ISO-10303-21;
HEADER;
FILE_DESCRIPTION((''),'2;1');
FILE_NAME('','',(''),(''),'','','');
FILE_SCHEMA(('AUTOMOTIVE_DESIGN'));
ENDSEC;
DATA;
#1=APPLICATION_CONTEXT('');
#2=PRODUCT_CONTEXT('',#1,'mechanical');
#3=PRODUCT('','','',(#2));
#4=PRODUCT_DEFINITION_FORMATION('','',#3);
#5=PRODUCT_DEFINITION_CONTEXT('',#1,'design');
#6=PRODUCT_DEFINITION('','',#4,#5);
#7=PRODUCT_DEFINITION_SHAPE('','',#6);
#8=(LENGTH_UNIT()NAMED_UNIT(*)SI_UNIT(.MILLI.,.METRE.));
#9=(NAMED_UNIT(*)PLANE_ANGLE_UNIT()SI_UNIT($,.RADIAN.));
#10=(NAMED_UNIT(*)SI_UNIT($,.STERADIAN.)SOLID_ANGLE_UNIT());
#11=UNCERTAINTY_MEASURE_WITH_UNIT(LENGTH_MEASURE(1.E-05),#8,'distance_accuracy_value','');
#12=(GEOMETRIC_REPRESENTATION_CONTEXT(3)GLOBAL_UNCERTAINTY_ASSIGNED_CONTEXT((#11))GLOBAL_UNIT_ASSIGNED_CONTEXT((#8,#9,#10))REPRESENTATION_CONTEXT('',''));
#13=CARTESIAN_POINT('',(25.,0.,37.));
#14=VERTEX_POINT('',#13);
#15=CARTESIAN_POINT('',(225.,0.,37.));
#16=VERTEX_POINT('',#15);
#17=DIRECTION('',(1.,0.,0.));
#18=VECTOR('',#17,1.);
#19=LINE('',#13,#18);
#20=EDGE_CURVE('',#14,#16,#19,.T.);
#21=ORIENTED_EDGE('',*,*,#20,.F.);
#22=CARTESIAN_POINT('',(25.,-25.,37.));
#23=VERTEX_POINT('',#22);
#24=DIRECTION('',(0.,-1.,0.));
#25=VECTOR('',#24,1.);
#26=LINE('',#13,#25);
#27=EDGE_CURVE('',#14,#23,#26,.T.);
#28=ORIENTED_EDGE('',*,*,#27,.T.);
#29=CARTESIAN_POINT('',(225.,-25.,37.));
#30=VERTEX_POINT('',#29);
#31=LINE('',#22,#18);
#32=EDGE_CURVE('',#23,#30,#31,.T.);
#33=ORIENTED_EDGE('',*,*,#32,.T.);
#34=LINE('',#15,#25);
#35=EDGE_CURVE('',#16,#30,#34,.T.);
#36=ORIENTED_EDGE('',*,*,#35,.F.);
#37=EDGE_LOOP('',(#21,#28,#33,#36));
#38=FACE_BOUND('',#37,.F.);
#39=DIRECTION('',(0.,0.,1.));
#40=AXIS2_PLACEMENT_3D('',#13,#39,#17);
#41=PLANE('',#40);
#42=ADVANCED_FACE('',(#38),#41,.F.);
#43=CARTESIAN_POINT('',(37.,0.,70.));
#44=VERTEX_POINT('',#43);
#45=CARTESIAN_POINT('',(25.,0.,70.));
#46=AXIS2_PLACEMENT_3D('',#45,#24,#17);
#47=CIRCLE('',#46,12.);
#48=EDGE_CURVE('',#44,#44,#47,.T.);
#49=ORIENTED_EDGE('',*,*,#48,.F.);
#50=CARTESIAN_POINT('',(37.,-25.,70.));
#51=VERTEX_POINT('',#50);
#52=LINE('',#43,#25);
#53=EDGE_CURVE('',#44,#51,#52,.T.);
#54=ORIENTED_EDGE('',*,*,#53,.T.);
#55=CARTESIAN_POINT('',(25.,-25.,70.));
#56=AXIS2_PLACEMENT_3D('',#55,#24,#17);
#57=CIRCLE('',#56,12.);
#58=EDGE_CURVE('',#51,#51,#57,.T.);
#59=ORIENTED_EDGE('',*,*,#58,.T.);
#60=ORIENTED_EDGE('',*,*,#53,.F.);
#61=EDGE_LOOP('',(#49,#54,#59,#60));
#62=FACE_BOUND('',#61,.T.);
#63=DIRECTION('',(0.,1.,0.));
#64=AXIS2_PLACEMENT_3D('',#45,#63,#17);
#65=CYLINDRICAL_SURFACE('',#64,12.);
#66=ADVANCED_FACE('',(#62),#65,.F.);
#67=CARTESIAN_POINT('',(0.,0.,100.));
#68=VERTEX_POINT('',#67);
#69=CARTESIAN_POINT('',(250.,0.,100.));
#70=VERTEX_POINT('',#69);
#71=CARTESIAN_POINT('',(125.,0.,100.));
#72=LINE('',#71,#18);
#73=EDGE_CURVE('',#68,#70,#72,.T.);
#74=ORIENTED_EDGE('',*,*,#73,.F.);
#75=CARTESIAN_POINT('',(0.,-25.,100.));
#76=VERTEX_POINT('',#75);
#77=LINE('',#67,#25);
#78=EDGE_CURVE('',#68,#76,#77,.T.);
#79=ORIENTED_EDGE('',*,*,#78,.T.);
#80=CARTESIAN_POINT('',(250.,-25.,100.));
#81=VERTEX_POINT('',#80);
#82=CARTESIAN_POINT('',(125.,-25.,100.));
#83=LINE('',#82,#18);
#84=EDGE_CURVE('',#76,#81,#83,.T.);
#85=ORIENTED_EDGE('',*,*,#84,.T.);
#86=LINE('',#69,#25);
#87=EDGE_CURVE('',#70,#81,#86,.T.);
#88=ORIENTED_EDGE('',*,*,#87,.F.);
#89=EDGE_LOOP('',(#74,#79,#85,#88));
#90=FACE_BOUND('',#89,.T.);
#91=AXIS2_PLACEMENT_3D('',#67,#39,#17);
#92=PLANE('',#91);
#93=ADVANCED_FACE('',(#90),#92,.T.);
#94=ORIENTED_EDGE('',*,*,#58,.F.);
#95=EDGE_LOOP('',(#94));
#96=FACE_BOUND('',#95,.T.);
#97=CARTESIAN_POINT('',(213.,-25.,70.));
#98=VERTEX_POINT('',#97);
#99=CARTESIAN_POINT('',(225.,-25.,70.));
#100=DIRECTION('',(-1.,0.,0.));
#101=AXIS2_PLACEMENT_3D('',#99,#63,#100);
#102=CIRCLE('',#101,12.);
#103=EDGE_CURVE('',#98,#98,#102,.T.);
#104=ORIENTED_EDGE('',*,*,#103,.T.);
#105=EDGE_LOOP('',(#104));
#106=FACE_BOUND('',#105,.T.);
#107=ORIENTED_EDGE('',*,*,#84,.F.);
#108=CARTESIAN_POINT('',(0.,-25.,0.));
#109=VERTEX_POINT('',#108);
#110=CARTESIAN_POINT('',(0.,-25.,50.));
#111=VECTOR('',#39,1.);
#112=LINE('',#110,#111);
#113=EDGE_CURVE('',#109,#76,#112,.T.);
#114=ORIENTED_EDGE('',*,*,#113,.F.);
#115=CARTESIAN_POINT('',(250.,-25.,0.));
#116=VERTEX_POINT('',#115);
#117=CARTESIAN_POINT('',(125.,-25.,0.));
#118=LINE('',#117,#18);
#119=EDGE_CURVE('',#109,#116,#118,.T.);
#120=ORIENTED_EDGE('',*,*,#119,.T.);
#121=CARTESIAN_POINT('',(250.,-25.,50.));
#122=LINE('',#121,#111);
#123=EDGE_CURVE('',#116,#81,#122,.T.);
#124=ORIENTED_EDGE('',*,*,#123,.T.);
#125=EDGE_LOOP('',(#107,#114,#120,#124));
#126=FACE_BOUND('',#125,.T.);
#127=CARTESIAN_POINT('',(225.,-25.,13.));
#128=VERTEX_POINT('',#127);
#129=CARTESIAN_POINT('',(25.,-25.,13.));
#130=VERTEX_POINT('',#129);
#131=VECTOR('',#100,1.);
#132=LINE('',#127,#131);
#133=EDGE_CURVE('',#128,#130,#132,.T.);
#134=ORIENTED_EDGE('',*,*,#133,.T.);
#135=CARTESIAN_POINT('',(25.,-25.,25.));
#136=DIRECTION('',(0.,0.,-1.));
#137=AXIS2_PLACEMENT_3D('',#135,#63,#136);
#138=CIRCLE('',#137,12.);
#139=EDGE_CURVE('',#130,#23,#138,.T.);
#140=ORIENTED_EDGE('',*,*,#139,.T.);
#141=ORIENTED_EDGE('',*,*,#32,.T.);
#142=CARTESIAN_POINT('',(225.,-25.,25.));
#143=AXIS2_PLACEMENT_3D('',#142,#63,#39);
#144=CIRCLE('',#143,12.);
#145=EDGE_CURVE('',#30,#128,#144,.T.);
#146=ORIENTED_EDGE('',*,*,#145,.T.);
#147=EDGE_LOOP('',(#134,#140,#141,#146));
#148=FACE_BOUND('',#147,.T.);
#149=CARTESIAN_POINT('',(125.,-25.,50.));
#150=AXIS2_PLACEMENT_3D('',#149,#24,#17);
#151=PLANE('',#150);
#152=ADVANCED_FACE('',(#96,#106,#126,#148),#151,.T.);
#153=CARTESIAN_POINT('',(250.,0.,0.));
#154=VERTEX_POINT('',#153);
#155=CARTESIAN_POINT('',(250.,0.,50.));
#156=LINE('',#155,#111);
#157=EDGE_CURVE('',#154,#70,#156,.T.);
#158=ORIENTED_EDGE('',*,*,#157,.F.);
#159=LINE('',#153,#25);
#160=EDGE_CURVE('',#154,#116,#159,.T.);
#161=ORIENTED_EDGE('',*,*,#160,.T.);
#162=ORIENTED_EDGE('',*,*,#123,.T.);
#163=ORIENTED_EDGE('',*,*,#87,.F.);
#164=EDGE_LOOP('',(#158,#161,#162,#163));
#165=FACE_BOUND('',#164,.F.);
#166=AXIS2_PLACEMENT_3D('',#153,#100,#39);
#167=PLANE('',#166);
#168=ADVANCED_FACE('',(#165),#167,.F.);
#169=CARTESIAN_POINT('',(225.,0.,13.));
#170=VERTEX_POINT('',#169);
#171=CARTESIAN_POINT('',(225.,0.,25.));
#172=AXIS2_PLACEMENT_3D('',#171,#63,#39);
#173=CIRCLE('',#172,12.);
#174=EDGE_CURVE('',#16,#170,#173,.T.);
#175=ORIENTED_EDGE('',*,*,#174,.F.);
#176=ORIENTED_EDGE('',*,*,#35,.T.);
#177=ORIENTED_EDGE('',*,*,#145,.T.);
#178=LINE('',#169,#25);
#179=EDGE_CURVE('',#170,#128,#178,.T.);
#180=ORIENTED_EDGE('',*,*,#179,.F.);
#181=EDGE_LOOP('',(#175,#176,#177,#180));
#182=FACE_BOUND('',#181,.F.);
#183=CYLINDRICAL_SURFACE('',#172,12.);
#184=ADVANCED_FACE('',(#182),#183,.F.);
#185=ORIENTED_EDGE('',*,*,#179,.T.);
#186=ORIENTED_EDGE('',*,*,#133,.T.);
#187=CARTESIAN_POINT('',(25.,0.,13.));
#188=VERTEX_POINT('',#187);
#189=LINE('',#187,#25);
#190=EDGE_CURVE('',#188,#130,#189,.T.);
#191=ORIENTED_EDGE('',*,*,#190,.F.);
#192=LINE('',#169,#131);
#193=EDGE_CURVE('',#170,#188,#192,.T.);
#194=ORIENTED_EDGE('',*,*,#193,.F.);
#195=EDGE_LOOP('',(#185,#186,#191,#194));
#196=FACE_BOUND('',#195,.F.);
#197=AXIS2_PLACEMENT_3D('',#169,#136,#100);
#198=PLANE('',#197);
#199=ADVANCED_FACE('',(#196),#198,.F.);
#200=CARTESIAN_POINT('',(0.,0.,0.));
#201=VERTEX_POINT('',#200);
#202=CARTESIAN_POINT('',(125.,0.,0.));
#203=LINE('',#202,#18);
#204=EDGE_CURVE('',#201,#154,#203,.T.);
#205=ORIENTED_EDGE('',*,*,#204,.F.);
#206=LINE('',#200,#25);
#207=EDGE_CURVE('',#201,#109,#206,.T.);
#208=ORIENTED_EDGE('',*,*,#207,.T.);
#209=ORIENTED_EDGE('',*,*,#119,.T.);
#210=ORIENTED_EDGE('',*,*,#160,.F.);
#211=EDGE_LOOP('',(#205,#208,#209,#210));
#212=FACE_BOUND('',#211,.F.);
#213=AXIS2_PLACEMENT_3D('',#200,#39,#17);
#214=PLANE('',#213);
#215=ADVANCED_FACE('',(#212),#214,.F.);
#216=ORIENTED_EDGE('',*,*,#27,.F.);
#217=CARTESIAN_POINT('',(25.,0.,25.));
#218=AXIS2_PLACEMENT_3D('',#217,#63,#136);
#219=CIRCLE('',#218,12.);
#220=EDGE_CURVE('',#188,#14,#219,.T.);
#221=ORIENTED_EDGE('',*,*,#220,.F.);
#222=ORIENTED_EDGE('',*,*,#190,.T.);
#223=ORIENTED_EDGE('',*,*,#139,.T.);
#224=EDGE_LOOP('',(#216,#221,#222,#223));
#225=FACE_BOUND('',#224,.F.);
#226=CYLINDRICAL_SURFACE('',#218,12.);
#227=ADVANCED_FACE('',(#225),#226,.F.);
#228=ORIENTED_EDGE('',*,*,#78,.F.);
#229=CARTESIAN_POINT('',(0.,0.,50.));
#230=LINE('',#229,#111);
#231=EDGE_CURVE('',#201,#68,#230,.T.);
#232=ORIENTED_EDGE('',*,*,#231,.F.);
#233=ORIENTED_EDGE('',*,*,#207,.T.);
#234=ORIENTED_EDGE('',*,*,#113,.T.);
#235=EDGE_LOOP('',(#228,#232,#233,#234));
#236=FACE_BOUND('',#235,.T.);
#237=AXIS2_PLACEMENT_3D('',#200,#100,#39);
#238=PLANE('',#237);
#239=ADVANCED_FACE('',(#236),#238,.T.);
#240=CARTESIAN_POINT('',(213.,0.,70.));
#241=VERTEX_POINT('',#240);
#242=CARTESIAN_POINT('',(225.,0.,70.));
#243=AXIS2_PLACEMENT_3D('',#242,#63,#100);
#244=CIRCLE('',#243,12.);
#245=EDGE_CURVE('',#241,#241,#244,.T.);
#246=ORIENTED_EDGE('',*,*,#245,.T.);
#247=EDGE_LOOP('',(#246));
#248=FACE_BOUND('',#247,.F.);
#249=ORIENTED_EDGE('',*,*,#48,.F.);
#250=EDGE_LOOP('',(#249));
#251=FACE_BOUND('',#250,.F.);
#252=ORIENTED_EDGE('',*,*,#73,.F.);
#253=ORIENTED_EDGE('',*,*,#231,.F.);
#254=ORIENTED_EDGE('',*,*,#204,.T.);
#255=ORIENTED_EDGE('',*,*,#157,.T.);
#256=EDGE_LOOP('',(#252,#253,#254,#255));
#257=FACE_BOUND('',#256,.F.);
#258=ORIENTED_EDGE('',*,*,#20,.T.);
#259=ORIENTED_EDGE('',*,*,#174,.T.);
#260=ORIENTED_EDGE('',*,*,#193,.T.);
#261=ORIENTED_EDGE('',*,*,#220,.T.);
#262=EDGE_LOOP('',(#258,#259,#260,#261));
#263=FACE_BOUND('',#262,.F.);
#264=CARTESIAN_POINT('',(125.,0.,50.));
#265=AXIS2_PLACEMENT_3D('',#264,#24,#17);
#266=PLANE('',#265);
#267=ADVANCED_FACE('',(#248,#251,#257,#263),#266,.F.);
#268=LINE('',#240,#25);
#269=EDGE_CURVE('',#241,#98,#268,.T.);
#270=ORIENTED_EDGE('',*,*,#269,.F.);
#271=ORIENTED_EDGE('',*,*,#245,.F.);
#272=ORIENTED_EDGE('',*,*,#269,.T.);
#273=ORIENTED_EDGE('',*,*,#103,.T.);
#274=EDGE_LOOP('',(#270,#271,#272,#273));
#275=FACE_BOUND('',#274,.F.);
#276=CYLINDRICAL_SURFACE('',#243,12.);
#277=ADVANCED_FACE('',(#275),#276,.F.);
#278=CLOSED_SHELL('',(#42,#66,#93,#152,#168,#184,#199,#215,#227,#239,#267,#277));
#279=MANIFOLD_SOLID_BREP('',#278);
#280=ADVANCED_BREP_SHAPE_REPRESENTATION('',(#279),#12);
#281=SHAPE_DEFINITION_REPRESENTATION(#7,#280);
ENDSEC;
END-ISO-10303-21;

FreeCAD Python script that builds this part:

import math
import FreeCAD as App
import Part
import Sketcher

doc = App.newDocument("Part")
body = doc.addObject("PartDesign::Body", "Body")

sketch1 = body.newObject("Sketcher::SketchObject", "Sketch")
sketch1.AttachmentSupport = (doc.getObject("XZ_Plane"), [""])
sketch1.MapMode = "FlatFace"
sketch1.addGeometry(Part.LineSegment(App.Vector(0, 100, 0), App.Vector(0, 0, 0)), False)
sketch1.addGeometry(Part.LineSegment(App.Vector(0, 0, 0), App.Vector(250, 0, 0)), False)
sketch1.addGeometry(Part.LineSegment(App.Vector(250, 0, 0), App.Vector(250, 100, 0)), False)
sketch1.addGeometry(Part.LineSegment(App.Vector(250, 100, 0), App.Vector(0, 100, 0)), False)
sketch1.addGeometry(Part.LineSegment(App.Vector(25, 37, 0), App.Vector(225, 37, 0)), False)
sketch1.addGeometry(Part.ArcOfCircle(Part.Circle(App.Vector(225, 25, 0), App.Vector(0, 0, 1), 12), math.radians(-90), math.radians(90)), False)
sketch1.addGeometry(Part.LineSegment(App.Vector(225, 13, 0), App.Vector(25, 13, 0)), False)
sketch1.addGeometry(Part.ArcOfCircle(Part.Circle(App.Vector(25, 25, 0), App.Vector(0, 0, 1), 12), math.radians(90), math.radians(270)), False)
sketch1.addGeometry(Part.Circle(App.Vector(25, 70, 0), App.Vector(0, 0, 1), 12), False)
sketch1.addGeometry(Part.Circle(App.Vector(225, 70, 0), App.Vector(0, 0, 1), 12), False)
sketch1.addConstraint(Sketcher.Constraint("Coincident", 0, 2, 1, 1))
sketch1.addConstraint(Sketcher.Constraint("Coincident", 1, 2, 2, 1))
sketch1.addConstraint(Sketcher.Constraint("Coincident", 2, 2, 3, 1))
sketch1.addConstraint(Sketcher.Constraint("Coincident", 3, 2, 0, 1))
sketch1.addConstraint(Sketcher.Constraint("Tangent", 4, 2, 5, 2))
sketch1.addConstraint(Sketcher.Constraint("Tangent", 5, 1, 6, 1))
sketch1.addConstraint(Sketcher.Constraint("Tangent", 6, 2, 7, 2))
sketch1.addConstraint(Sketcher.Constraint("Tangent", 7, 1, 4, 1))
sketch1.addConstraint(Sketcher.Constraint("Vertical", 0))
sketch1.addConstraint(Sketcher.Constraint("Horizontal", 1))
sketch1.addConstraint(Sketcher.Constraint("Vertical", 2))
sketch1.addConstraint(Sketcher.Constraint("Horizontal", 3))
sketch1.addConstraint(Sketcher.Constraint("Horizontal", 4))
sketch1.addConstraint(Sketcher.Constraint("Horizontal", 6))
sketch1.addConstraint(Sketcher.Constraint("Coincident", 0, 2, -1, 1))
sketch1.addConstraint(Sketcher.Constraint("Equal", 7, 8))
sketch1.addConstraint(Sketcher.Constraint("Equal", 8, 9))
sketch1.addConstraint(Sketcher.Constraint("Horizontal", 8, 3, 9, 3))
sketch1.addConstraint(Sketcher.Constraint("Vertical", 7, 3, 8, 3))
sketch1.addConstraint(Sketcher.Constraint("Vertical", 5, 3, 9, 3))
sketch1.addConstraint(Sketcher.Constraint("Diameter", 8, 24.0))
sketch1.addConstraint(Sketcher.Constraint("DistanceX", 1, 1, 1, 2, 250.0))
sketch1.addConstraint(Sketcher.Constraint("DistanceX", 4, 1, 4, 2, 200.0))
sketch1.addConstraint(Sketcher.Constraint("DistanceY", 0, 2, 0, 1, 100.0))
sketch1.addConstraint(Sketcher.Constraint("DistanceX", -1, 1, 5, 3, 225.0))
sketch1.addConstraint(Sketcher.Constraint("DistanceY", -1, 1, 5, 3, 25.0))
sketch1.addConstraint(Sketcher.Constraint("DistanceY", -1, 1, 8, 3, 70.0))
pad1 = body.newObject("PartDesign::Pad", "Pad")
pad1.Profile = sketch1
pad1.Length = 25

doc.recompute()
